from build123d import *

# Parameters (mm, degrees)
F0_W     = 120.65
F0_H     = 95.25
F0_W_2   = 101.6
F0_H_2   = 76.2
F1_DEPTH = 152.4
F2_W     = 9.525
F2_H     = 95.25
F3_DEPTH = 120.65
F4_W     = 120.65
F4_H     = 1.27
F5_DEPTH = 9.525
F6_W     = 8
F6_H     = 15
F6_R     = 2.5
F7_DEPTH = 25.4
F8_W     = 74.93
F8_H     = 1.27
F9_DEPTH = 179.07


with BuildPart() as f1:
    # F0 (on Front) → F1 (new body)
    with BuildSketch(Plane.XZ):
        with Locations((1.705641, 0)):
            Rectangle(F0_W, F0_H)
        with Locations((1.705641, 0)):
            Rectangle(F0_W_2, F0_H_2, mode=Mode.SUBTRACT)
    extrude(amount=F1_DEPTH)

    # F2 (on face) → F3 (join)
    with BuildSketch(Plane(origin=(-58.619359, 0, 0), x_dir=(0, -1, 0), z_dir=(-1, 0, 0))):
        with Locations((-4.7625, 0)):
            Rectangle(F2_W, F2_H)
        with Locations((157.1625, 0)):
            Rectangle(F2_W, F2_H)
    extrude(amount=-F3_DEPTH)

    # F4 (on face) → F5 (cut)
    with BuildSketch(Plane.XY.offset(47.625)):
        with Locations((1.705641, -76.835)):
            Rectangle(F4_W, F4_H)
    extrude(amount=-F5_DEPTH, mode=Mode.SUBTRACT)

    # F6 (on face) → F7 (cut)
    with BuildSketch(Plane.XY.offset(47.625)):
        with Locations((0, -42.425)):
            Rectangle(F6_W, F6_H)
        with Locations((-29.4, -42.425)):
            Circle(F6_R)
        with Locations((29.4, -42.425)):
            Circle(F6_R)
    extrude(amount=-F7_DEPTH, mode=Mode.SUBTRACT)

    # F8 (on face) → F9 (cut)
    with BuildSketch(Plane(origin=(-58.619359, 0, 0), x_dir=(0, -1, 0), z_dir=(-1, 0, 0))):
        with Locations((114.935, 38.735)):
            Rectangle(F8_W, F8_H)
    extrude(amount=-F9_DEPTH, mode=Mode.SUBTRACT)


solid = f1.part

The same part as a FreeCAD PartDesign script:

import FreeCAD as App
import Part
import Sketcher

V = App.Vector
Q = App.Units.Quantity


def add_polygon(sketch, points):
    """Adds a closed chain of lines whose ends are joined by coincident constraints."""
    first, n = sketch.GeometryCount, len(points)
    for a, b in zip(points, points[1:] + points[:1]):
        sketch.addGeometry(Part.LineSegment(App.Vector(*a, 0), App.Vector(*b, 0)), False)
    for i in range(n):
        sketch.addConstraint(Sketcher.Constraint("Coincident", first + i, 2, first + (i + 1) % n, 1))

doc = App.newDocument("Part")
body = doc.addObject("PartDesign::Body", "Body")

# Sketch on XZ plane
sketch1 = body.newObject("Sketcher::SketchObject", "Sketch")
sketch1.AttachmentSupport = (doc.getObject("XZ_Plane"), [""])
sketch1.MapMode = "FlatFace"
add_polygon(sketch1, [(-59, 48), (-59, -48), (62, -48), (62, 48)])  # lines 0-3
add_polygon(sketch1, [(53, -38), (-49, -38), (-49, 38), (53, 38)])  # lines 4-7
sketch1.addConstraint([
    Sketcher.Constraint("Vertical", 0),
    Sketcher.Constraint("Horizontal", 1),
    Sketcher.Constraint("Vertical", 2),
    Sketcher.Constraint("Horizontal", 3),
    Sketcher.Constraint("Horizontal", 4),
    Sketcher.Constraint("Vertical", 5),
    Sketcher.Constraint("Horizontal", 6),
    Sketcher.Constraint("Vertical", 7),
    Sketcher.Constraint("DistanceX", 4, 2, 4, 1, Q("4 in")),
    Sketcher.Constraint("DistanceY", 5, 1, 5, 2, Q("3 in")),
    Sketcher.Constraint("DistanceX", 1, 1, 1, 2, Q("4.75 in")),
    Sketcher.Constraint("DistanceY", 0, 2, 0, 1, Q("3.75 in")),
    Sketcher.Constraint("DistanceY", 4, 2, -1, 1, Q("1.5 in")),
    Sketcher.Constraint("DistanceY", 0, 2, -1, 1, Q("1.875 in")),
    Sketcher.Constraint("DistanceX", 0, 2, 4, 2, Q("0.375 in")),
    Sketcher.Constraint("DistanceX", 0, 2, -1, 1, 58.619359),
])
pad1 = body.newObject("PartDesign::Pad", "Pad")
pad1.Profile = sketch1
pad1.Length = Q("6 in")

# Sketch on YZ plane
sketch2 = body.newObject("Sketcher::SketchObject", "Sketch001")
sketch2.AttachmentSupport = (doc.getObject("YZ_Plane"), [""])
sketch2.MapMode = "FlatFace"
sketch2.AttachmentOffset = App.Placement(V(0, 0, -58.619359), App.Rotation())
add_polygon(sketch2, [(10, 48), (10, -48), (0, -48), (0, 48)])  # lines 0-3
add_polygon(sketch2, [(-152, 48), (-152, -48), (-162, -48), (-162, 48)])  # lines 4-7
sketch2.addConstraint([
    Sketcher.Constraint("Vertical", 0),
    Sketcher.Constraint("Horizontal", 1),
    Sketcher.Constraint("Vertical", 2),
    Sketcher.Constraint("Horizontal", 3),
    Sketcher.Constraint("Vertical", 4),
    Sketcher.Constraint("Horizontal", 5),
    Sketcher.Constraint("Vertical", 6),
    Sketcher.Constraint("Horizontal", 7),
    Sketcher.Constraint("Symmetric", 1, 2, 2, 2, -1, 1),
    Sketcher.Constraint("Horizontal", 1, 2, 4, 2),
    Sketcher.Constraint("Horizontal", 3, 2, 6, 2),
    Sketcher.Constraint("Equal", 3, 5),
    Sketcher.Constraint("DistanceX", 4, 2, -1, 1, Q("6 in")),
    Sketcher.Constraint("DistanceY", 0, 2, 0, 1, Q("3.75 in")),
    Sketcher.Constraint("DistanceX", 1, 2, 1, 1, Q("0.375 in")),
])
pad2 = body.newObject("PartDesign::Pad", "Pad001")
pad2.Profile = sketch2
pad2.Length = Q("4.75 in")

# Sketch on XY plane
sketch3 = body.newObject("Sketcher::SketchObject", "Sketch002")
sketch3.AttachmentSupport = (doc.getObject("XY_Plane"), [""])
sketch3.MapMode = "FlatFace"
sketch3.AttachmentOffset = App.Placement(V(0, 0, 1.875 * 25.4), App.Rotation())
add_polygon(sketch3, [(-58.6, -76.2), (-58.6, -77.5), (62, -77.5), (62, -76.2)])  # lines 0-3
sketch3.addConstraint([
    Sketcher.Constraint("Vertical", 0),
    Sketcher.Constraint("Horizontal", 1),
    Sketcher.Constraint("Vertical", 2),
    Sketcher.Constraint("Horizontal", 3),
    Sketcher.Constraint("DistanceY", 2, 2, -1, 1, Q("3 in")),
    Sketcher.Constraint("DistanceX", 1, 1, 1, 2, Q("4.75 in")),
    Sketcher.Constraint("DistanceY", 0, 2, 0, 1, Q("0.05 in")),
    Sketcher.Constraint("DistanceX", 0, 2, -1, 1, 58.619359),
])
pocket1 = body.newObject("PartDesign::Pocket", "Pocket")
pocket1.Profile = sketch3
pocket1.Length = Q("0.375 in")

# Sketch on XY plane
sketch4 = body.newObject("Sketcher::SketchObject", "Sketch003")
sketch4.AttachmentSupport = (doc.getObject("XY_Plane"), [""])
sketch4.MapMode = "FlatFace"
sketch4.AttachmentOffset = App.Placement(V(0, 0, 1.875 * 25.4), App.Rotation())
add_polygon(sketch4, [(-4, -34.9), (-4, -49.9), (4, -49.9), (4, -34.9)])  # lines 0-3
sketch4.addGeometry(Part.Circle(V(-29.4, -42.4, 0), V(0, 0, 1), 2.5), False)  # 4
sketch4.addGeometry(Part.Circle(V(29.4, -42.4, 0), V(0, 0, 1), 2.5), False)  # 5
sketch4.addConstraint([
    Sketcher.Constraint("Vertical", 0),
    Sketcher.Constraint("Horizontal", 1),
    Sketcher.Constraint("Vertical", 2),
    Sketcher.Constraint("Horizontal", 3),
    Sketcher.Constraint("Equal", 4, 5),
    Sketcher.Constraint("Symmetric", 4, 3, 5, 3, -2),
    Sketcher.Constraint("DistanceX", 4, 3, 0, 2, Q("1 in")),
    Sketcher.Constraint("DistanceX", 1, 2, 5, 3, Q("1 in")),
    Sketcher.Constraint("Diameter", 4, 5.0),
    Sketcher.Constraint("DistanceY", 2, 2, -1, 1, Q("1.375 in")),
    Sketcher.Constraint("DistanceX", 1, 1, 1, 2, 8.0),
    Sketcher.Constraint("DistanceY", 0, 2, 0, 1, 15.0),
    Sketcher.Constraint("DistanceY", 4, 3, -1, 1, 42.425),
])
pocket2 = body.newObject("PartDesign::Pocket", "Pocket001")
pocket2.Profile = sketch4
pocket2.Length = Q("1 in")

# Sketch on YZ plane
sketch5 = body.newObject("Sketcher::SketchObject", "Sketch004")
sketch5.AttachmentSupport = (doc.getObject("YZ_Plane"), [""])
sketch5.MapMode = "FlatFace"
sketch5.AttachmentOffset = App.Placement(V(0, 0, -58.619359), App.Rotation())
add_polygon(sketch5, [(-77.5, 39.4), (-77.5, 38.1), (-152.4, 38.1), (-152.4, 39.4)])  # lines 0-3
sketch5.addConstraint([
    Sketcher.Constraint("Vertical", 0),
    Sketcher.Constraint("Horizontal", 1),
    Sketcher.Constraint("Vertical", 2),
    Sketcher.Constraint("Horizontal", 3),
    Sketcher.Constraint("DistanceX", 1, 2, -1, 1, Q("6 in")),
    Sketcher.Constraint("DistanceX", 1, 2, 1, 1, Q("2.95 in")),
    Sketcher.Constraint("DistanceY", 0, 2, 0, 1, Q("0.05 in")),
    Sketcher.Constraint("DistanceY", -1, 1, 0, 2, Q("1.5 in")),
])
pocket3 = body.newObject("PartDesign::Pocket", "Pocket002")
pocket3.Profile = sketch5
pocket3.Length = Q("7.05 in")
pocket3.Reversed = True

doc.recompute()
